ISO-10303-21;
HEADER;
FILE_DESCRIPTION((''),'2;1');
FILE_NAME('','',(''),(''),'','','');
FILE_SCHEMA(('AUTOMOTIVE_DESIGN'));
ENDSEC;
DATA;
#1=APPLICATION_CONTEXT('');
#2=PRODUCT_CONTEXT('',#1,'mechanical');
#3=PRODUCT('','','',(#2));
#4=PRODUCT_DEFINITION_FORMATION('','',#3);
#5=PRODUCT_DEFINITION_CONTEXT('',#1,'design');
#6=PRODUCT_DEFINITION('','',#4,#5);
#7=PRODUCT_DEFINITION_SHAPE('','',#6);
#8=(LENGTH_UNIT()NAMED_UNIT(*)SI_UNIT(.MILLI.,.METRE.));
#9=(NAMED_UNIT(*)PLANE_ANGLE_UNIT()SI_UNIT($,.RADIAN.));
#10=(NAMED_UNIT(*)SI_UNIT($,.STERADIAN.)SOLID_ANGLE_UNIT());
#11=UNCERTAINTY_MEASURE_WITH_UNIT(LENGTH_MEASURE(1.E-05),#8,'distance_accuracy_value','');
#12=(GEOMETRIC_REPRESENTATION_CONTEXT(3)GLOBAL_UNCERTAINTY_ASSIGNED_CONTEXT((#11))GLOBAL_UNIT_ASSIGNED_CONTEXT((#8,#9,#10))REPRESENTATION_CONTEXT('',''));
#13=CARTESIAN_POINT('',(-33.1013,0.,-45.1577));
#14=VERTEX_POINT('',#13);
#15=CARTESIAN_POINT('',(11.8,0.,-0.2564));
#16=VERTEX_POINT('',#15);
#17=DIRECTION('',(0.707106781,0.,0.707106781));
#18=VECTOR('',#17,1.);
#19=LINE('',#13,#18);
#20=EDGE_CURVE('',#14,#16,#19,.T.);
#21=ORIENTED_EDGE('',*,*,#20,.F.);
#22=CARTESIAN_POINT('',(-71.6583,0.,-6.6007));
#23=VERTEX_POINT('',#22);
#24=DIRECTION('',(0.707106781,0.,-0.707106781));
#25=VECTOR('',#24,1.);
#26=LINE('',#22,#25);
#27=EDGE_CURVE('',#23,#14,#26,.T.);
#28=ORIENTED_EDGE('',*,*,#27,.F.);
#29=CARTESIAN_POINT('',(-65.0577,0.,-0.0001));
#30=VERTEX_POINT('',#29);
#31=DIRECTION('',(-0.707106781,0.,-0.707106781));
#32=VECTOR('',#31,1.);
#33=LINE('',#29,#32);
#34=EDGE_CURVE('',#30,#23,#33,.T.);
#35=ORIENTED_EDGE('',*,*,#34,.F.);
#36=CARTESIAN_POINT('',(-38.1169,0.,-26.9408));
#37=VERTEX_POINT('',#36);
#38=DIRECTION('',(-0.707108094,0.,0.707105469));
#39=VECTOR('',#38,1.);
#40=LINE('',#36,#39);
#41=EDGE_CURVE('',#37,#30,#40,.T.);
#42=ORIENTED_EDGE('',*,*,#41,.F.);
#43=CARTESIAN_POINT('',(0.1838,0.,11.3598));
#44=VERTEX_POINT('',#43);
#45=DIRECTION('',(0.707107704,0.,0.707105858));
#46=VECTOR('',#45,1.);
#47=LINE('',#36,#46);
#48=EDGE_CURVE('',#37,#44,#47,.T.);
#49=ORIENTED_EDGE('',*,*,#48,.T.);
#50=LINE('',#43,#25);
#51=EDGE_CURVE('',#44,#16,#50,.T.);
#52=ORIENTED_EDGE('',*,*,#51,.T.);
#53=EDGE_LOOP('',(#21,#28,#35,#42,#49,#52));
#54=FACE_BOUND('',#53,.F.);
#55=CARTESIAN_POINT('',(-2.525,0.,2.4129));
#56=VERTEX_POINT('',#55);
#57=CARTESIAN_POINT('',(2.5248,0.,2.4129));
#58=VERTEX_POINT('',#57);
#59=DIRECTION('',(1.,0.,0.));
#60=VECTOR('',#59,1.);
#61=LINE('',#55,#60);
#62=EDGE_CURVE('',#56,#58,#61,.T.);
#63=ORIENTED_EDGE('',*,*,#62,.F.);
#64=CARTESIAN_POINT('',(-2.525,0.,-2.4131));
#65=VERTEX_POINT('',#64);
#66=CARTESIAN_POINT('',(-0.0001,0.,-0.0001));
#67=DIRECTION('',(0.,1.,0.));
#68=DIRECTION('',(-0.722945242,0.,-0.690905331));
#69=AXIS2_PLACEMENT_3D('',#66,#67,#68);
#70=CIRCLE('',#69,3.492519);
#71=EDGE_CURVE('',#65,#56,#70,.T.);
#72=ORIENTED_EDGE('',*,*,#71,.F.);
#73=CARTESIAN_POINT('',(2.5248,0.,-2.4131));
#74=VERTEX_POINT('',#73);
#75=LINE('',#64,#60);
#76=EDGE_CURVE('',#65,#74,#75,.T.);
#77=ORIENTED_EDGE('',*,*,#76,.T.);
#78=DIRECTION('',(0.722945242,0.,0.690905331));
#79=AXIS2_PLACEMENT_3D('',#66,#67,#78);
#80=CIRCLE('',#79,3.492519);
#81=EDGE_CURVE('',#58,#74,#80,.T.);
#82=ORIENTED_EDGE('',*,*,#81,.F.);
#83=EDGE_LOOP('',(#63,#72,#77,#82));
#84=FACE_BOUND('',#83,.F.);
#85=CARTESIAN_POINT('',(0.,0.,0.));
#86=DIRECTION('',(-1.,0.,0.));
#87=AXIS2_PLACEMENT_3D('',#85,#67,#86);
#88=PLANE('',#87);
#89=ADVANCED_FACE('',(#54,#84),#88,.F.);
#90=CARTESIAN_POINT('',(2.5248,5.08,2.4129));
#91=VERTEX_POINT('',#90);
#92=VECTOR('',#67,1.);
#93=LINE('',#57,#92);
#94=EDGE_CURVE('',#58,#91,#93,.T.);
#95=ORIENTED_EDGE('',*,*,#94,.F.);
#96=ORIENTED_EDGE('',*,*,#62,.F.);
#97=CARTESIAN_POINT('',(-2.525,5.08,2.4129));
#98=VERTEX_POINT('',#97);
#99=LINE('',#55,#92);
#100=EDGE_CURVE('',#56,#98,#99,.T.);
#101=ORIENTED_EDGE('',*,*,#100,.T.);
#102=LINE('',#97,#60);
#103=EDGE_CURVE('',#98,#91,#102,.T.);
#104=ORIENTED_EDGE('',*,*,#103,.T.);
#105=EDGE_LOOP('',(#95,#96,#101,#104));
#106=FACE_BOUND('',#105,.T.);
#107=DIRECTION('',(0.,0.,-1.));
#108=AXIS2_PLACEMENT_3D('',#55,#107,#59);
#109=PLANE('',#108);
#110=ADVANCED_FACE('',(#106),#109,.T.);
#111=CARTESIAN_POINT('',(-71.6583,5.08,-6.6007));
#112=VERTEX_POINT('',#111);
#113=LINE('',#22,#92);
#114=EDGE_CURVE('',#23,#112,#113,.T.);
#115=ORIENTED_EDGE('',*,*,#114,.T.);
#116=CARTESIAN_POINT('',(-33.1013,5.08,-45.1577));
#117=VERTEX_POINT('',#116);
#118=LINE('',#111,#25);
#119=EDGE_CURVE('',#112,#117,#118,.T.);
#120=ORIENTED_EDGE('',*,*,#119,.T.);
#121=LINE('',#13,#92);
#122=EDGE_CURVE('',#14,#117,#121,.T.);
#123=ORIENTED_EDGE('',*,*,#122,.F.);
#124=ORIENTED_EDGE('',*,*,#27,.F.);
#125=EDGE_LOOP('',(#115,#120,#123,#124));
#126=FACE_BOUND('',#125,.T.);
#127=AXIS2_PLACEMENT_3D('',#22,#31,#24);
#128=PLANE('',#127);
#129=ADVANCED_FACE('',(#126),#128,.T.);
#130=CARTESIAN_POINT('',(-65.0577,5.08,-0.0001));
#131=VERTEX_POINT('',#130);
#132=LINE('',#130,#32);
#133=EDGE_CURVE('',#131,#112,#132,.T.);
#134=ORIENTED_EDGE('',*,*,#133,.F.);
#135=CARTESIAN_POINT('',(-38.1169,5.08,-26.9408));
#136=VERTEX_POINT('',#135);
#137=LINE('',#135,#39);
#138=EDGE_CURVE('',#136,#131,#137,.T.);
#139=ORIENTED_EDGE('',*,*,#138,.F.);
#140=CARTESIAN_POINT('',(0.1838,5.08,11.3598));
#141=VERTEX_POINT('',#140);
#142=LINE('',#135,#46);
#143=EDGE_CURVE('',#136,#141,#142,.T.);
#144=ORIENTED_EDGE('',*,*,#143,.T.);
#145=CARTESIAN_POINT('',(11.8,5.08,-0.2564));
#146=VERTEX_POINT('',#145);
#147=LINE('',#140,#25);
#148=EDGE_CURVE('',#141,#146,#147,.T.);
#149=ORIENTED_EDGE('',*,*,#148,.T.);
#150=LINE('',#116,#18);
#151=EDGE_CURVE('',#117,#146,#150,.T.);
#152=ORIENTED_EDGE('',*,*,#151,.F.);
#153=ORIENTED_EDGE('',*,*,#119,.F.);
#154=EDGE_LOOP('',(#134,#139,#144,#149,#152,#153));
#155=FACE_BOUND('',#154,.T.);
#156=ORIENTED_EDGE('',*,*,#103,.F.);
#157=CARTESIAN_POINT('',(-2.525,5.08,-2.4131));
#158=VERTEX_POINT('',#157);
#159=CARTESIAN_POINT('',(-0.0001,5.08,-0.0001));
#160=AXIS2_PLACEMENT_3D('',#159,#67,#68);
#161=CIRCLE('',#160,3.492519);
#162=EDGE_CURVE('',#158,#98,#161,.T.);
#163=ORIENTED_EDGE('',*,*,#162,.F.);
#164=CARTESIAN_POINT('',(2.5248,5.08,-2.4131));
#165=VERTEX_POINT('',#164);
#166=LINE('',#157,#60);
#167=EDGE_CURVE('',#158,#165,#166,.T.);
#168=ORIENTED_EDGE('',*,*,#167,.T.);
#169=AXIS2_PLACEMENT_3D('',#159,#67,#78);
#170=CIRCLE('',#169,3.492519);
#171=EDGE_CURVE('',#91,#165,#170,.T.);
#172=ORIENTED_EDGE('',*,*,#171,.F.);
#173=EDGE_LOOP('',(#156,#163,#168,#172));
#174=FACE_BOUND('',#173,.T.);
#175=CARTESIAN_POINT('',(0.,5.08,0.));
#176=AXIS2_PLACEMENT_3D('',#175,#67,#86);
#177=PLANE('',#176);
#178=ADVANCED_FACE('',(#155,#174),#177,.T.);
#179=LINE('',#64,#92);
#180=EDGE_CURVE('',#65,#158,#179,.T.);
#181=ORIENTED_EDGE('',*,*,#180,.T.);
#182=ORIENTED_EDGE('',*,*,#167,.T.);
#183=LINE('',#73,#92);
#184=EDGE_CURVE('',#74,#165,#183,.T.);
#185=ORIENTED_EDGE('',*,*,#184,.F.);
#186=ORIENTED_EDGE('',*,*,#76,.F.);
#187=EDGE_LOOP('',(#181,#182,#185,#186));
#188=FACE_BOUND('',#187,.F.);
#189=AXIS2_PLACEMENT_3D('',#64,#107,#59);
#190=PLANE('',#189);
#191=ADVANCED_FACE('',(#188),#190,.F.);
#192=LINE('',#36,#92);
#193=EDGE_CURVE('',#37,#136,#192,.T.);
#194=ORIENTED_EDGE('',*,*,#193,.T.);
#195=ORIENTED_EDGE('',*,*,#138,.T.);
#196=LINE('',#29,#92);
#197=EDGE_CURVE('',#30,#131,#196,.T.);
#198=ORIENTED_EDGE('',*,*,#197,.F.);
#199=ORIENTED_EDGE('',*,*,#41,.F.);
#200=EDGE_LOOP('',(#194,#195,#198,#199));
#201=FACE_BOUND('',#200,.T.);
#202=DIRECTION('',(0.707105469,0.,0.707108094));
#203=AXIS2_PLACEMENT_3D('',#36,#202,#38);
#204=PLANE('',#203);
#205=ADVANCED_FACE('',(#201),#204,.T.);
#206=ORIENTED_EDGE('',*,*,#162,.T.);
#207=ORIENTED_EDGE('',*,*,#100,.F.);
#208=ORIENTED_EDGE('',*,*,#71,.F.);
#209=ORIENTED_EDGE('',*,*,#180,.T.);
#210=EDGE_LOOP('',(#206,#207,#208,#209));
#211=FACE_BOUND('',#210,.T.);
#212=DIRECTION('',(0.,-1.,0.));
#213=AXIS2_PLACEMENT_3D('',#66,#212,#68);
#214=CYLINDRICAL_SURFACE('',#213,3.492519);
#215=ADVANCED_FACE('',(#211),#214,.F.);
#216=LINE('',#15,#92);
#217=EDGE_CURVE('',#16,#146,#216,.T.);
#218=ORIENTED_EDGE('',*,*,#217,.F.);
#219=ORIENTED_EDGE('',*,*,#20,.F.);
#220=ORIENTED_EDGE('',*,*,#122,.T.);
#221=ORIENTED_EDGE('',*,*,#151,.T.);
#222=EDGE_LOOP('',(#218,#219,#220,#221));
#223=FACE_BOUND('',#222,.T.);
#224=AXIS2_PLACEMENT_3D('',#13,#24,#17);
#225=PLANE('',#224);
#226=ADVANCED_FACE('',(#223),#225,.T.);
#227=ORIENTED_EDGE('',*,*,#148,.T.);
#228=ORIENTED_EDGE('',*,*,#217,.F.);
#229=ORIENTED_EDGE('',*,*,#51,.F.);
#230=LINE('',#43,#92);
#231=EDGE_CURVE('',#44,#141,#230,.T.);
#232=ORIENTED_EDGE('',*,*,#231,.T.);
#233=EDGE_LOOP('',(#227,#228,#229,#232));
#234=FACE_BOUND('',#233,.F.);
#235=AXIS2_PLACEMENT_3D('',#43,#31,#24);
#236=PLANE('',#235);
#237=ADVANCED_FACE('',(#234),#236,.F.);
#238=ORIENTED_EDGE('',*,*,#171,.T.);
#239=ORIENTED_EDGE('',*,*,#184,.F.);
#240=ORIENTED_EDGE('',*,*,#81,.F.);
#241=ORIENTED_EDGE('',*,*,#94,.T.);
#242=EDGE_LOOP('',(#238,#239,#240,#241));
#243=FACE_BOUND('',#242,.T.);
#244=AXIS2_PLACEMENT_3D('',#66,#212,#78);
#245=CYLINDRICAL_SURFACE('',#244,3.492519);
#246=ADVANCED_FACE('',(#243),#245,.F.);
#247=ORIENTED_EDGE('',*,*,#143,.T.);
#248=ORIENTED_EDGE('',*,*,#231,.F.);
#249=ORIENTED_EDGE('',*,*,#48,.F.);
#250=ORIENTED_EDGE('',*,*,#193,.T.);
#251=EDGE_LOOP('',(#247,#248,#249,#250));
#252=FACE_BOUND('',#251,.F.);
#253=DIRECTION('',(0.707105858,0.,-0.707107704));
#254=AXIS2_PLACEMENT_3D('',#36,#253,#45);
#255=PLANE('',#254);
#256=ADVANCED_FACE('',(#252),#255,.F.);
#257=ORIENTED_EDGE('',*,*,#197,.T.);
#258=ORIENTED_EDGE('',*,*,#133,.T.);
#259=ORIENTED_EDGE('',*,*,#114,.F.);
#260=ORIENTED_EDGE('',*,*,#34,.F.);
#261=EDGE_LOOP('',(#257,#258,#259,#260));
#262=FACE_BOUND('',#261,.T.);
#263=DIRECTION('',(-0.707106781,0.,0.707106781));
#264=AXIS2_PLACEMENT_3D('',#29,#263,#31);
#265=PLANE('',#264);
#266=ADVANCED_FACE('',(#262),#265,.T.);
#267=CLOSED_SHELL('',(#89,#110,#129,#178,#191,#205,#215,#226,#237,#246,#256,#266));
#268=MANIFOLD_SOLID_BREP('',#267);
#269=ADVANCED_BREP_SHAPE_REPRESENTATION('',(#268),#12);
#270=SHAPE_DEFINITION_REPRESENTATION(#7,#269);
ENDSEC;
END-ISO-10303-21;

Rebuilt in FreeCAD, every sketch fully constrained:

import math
import FreeCAD as App
import Part
import Sketcher

V = App.Vector
Q = App.Units.Quantity


def add_polygon(sketch, points):
    """Adds a closed chain of lines whose ends are joined by coincident constraints."""
    first, n = sketch.GeometryCount, len(points)
    for a, b in zip(points, points[1:] + points[:1]):
        sketch.addGeometry(Part.LineSegment(App.Vector(*a, 0), App.Vector(*b, 0)), False)
    for i in range(n):
        sketch.addConstraint(Sketcher.Constraint("Coincident", first + i, 2, first + (i + 1) % n, 1))

doc = App.newDocument("Part")
body = doc.addObject("PartDesign::Body", "Body")

# Sketch on XZ plane
sketch1 = body.newObject("Sketcher::SketchObject", "Sketch")
sketch1.AttachmentSupport = (doc.getObject("XZ_Plane"), [""])
sketch1.MapMode = "FlatFace"
add_polygon(sketch1, [(-65.1, 0), (-38.1, -26.9), (0.2, 11.4), (11.8, -0.3), (-33.1, -45.2), (-71.7, -6.6)])  # lines 0-5
sketch1.addGeometry(Part.LineSegment(V(2.5, 2.4, 0), V(-2.5, 2.4, 0)), False)  # 6
sketch1.addGeometry(Part.ArcOfCircle(Part.Circle(V(0, 0, 0), V(0, 0, 1), 3.5), math.radians(136), math.radians(224)), False)  # 7
sketch1.addGeometry(Part.LineSegment(V(-2.5, -2.4, 0), V(2.5, -2.4, 0)), False)  # 8
sketch1.addGeometry(Part.ArcOfCircle(Part.Circle(V(0, 0, 0), V(0, 0, 1), 3.5), math.radians(-44), math.radians(44)), False)  # 9
sketch1.addConstraint([
    Sketcher.Constraint("Coincident", 6, 2, 7, 1),
    Sketcher.Constraint("Coincident", 7, 2, 8, 1),
    Sketcher.Constraint("Coincident", 8, 2, 9, 1),
    Sketcher.Constraint("Coincident", 9, 2, 6, 1),
    Sketcher.Constraint("Horizontal", 6),
    Sketcher.Constraint("Horizontal", 8),
    Sketcher.Constraint("Coincident", 7, 3, -1, 1),
    Sketcher.Constraint("Coincident", 9, 3, -1, 1),
    Sketcher.Constraint("Equal", 7, 9),
    Sketcher.Constraint("PointOnObject", 5, 2, -1),
    Sketcher.Constraint("Perpendicular", 0, 1),
    Sketcher.Constraint("Perpendicular", 1, 2),
    Sketcher.Constraint("Perpendicular", 2, 3),
    Sketcher.Constraint("Perpendicular", 3, 4),
    Sketcher.Constraint("Perpendicular", 4, 5),
    Sketcher.Constraint("Vertical", 6, 2, 7, 2),
    Sketcher.Constraint("Distance", 3, Q("2.5 in")),
    Sketcher.Constraint("Radius", 7, Q("0.1375 in")),
    Sketcher.Constraint("DistanceY", 7, 2, 6, 2, Q("0.19 in")),
    Sketcher.Constraint("Angle", 0, Q("-45 deg")),
    Sketcher.Constraint("Distance", 0, Q("1.5 in")),
    Sketcher.Constraint("DistanceX", 4, 2, 3, 2, Q("1.518 in")),
    Sketcher.Constraint("Distance", 1, Q("2.1325 in")),
    Sketcher.Constraint("DistanceX", 3, 2, -1, 1, Q("1.3032 in")),
])
pad1 = body.newObject("PartDesign::Pad", "Pad")
pad1.Profile = sketch1
pad1.Length = Q("0.2 in")
pad1.Reversed = True

doc.recompute()
